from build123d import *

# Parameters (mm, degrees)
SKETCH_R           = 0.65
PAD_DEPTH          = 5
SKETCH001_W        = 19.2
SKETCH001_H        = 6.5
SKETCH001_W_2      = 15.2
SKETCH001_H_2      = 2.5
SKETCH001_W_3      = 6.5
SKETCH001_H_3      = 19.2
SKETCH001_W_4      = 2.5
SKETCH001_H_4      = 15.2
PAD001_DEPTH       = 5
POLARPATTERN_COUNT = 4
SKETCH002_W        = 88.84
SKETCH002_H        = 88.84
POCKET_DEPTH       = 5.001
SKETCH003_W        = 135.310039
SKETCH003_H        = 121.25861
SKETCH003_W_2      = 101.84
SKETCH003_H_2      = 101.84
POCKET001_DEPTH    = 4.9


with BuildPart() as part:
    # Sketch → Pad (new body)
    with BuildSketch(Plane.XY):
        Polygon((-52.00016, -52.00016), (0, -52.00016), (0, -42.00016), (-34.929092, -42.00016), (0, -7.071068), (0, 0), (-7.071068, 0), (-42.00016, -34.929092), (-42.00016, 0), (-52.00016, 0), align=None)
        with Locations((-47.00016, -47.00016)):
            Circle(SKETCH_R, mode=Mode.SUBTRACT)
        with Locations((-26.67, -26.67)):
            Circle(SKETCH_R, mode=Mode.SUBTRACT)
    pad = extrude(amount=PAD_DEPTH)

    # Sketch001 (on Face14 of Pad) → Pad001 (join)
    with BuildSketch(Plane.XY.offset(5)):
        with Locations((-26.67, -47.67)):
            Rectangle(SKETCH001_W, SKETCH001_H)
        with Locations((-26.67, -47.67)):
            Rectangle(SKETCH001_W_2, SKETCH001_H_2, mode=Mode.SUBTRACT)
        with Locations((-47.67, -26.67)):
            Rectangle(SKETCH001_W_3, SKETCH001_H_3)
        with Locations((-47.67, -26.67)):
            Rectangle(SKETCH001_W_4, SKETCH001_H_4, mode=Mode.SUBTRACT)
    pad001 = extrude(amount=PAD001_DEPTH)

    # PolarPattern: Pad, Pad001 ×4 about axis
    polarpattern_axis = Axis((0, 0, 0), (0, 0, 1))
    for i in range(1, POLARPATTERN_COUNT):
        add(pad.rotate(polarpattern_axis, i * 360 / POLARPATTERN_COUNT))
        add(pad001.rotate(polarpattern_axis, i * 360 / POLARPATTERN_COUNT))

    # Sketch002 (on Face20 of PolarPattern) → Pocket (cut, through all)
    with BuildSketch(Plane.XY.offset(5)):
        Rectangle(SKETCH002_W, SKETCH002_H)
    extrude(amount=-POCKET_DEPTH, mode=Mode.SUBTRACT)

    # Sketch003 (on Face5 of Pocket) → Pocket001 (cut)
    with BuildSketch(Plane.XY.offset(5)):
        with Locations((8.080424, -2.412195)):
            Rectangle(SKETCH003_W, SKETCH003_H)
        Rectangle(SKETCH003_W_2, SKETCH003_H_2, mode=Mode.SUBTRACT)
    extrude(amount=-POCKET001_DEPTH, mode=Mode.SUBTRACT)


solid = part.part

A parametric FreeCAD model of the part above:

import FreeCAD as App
import Part
import Sketcher
from FreeCAD import Vector
Q = App.Units.Quantity


def add_polygon(sketch, points):
    """Adds a closed chain of lines whose ends are joined by coincident constraints."""
    first, n = sketch.GeometryCount, len(points)
    for a, b in zip(points, points[1:] + points[:1]):
        sketch.addGeometry(Part.LineSegment(App.Vector(*a, 0), App.Vector(*b, 0)), False)
    for i in range(n):
        sketch.addConstraint(Sketcher.Constraint("Coincident", first + i, 2, first + (i + 1) % n, 1))

doc = App.newDocument("Part")
body = doc.addObject("PartDesign::Body", "Body")

# Sketch on XY plane
sketch1 = body.newObject("Sketcher::SketchObject", "Sketch")
sketch1.AttachmentSupport = (doc.getObject("XY_Plane"), [""])
sketch1.MapMode = "FlatFace"
add_polygon(sketch1, [(-52.00016, -52.00016), (0, -52.00016), (0, -42.00016), (-34.929092, -42.00016), (0, -7.071068), (0, 0), (-7.071068, 0), (-42.00016, -34.929092), (-42.00016, 0), (-52.00016, 0)])  # lines 0-9
sketch1.addGeometry(Part.Circle(Vector(-47.00016, -47.00016, 0), Vector(0, 0, 1), 0.65), False)  # 10
sketch1.addGeometry(Part.Circle(Vector(-26.67, -26.67, 0), Vector(0, 0, 1), 0.65), False)  # 11
sketch1.addConstraint(Sketcher.Constraint("Horizontal", 0))
sketch1.addConstraint(Sketcher.Constraint("Vertical", 1))
sketch1.addConstraint(Sketcher.Constraint("Horizontal", 2))
sketch1.addConstraint(Sketcher.Constraint("Vertical", 4))
sketch1.addConstraint(Sketcher.Constraint("Horizontal", 5))
sketch1.addConstraint(Sketcher.Constraint("Vertical", 7))
sketch1.addConstraint(Sketcher.Constraint("Horizontal", 8))
sketch1.addConstraint(Sketcher.Constraint("Vertical", 9))
sketch1.addConstraint(Sketcher.Constraint("Coincident", 4, 2, -1, 1))
sketch1.addConstraint(Sketcher.Constraint("Equal", 10, 11))
sketch1.addConstraint(Sketcher.Constraint("PointOnObject", 0, 2, -2))
sketch1.addConstraint(Sketcher.Constraint("PointOnObject", 7, 2, -1))
sketch1.addConstraint(Sketcher.Constraint("Parallel", 3, 6))
sketch1.addConstraint(Sketcher.Constraint("Equal", 8, 1))
sketch1.addConstraint(Sketcher.Constraint("Equal", 5, 4))
sketch1.addConstraint(Sketcher.Constraint("Equal", 2, 7))
sketch1.addConstraint(Sketcher.Constraint("Equal", 0, 9))
sketch1.addConstraint(Sketcher.Constraint("Diameter", 10, Q("1.3 mm")))
sketch1.addConstraint(Sketcher.Constraint("DistanceX", 8, 2, 8, 1, Q("10 mm")))
sketch1.addConstraint(Sketcher.Constraint("DistanceY", 0, 2, 10, 3, Q("5 mm")))
sketch1.addConstraint(Sketcher.Constraint("DistanceX", 10, 3, 6, 2, Q("5 mm")))
sketch1.addConstraint(Sketcher.Constraint("DistanceX", 11, 3, -1, 1, Q("26.67 mm")))
sketch1.addConstraint(Sketcher.Constraint("DistanceY", 11, 3, -1, 1, Q("26.67 mm")))
sketch1.addConstraint(Sketcher.Constraint("DistanceX", 0, 1, 0, 2, Q("52.00016 mm")))
sketch1.addConstraint(Sketcher.Constraint("DistanceX", 2, 2, 2, 1, Q("34.929092 mm")))
pad1 = body.newObject("PartDesign::Pad", "Pad")
pad1.Profile = sketch1
pad1.Length = 5

# Sketch on XY plane
sketch2 = body.newObject("Sketcher::SketchObject", "Sketch001")
sketch2.AttachmentSupport = (doc.getObject("XY_Plane"), [""])
sketch2.MapMode = "FlatFace"
sketch2.AttachmentOffset = App.Placement(Vector(0, 0, 5), App.Rotation())
add_polygon(sketch2, [(-36.27, -44.42), (-36.27, -50.92), (-17.07, -50.92), (-17.07, -44.42)])  # lines 0-3
add_polygon(sketch2, [(-19.07, -48.92), (-34.27, -48.92), (-34.27, -46.42), (-19.07, -46.42)])  # lines 4-7
add_polygon(sketch2, [(-50.92, -17.07), (-50.92, -36.27), (-44.42, -36.27), (-44.42, -17.07)])  # lines 8-11
add_polygon(sketch2, [(-46.42, -34.27), (-48.92, -34.27), (-48.92, -19.07), (-46.42, -19.07)])  # lines 12-15
sketch2.addConstraint(Sketcher.Constraint("Vertical", 0))
sketch2.addConstraint(Sketcher.Constraint("Horizontal", 1))
sketch2.addConstraint(Sketcher.Constraint("Vertical", 2))
sketch2.addConstraint(Sketcher.Constraint("Horizontal", 3))
sketch2.addConstraint(Sketcher.Constraint("Horizontal", 4))
sketch2.addConstraint(Sketcher.Constraint("Vertical", 5))
sketch2.addConstraint(Sketcher.Constraint("Horizontal", 6))
sketch2.addConstraint(Sketcher.Constraint("Vertical", 7))
sketch2.addConstraint(Sketcher.Constraint("Vertical", 8))
sketch2.addConstraint(Sketcher.Constraint("Horizontal", 9))
sketch2.addConstraint(Sketcher.Constraint("Vertical", 10))
sketch2.addConstraint(Sketcher.Constraint("Horizontal", 11))
sketch2.addConstraint(Sketcher.Constraint("Horizontal", 12))
sketch2.addConstraint(Sketcher.Constraint("Vertical", 13))
sketch2.addConstraint(Sketcher.Constraint("Horizontal", 14))
sketch2.addConstraint(Sketcher.Constraint("Vertical", 15))
sketch2.addConstraint(Sketcher.Constraint("Equal", 11, 0))
sketch2.addConstraint(Sketcher.Constraint("Equal", 14, 5))
sketch2.addConstraint(Sketcher.Constraint("Equal", 3, 8))
sketch2.addConstraint(Sketcher.Constraint("Equal", 6, 13))
sketch2.addConstraint(Sketcher.Constraint("DistanceX", 1, 1, 1, 2, Q("19.2 mm")))
sketch2.addConstraint(Sketcher.Constraint("DistanceX", 4, 2, 4, 1, Q("15.2 mm")))
sketch2.addConstraint(Sketcher.Constraint("DistanceX", 9, 1, 9, 2, Q("6.5 mm")))
sketch2.addConstraint(Sketcher.Constraint("DistanceX", 12, 2, 12, 1, Q("2.5 mm")))
sketch2.addConstraint(Sketcher.Constraint("DistanceX", 0, 2, 4, 2, Q("2 mm")))
sketch2.addConstraint(Sketcher.Constraint("DistanceY", 0, 2, 4, 2, Q("2 mm")))
sketch2.addConstraint(Sketcher.Constraint("DistanceX", 8, 2, 12, 2, Q("2 mm")))
sketch2.addConstraint(Sketcher.Constraint("DistanceY", 8, 2, 12, 2, Q("2 mm")))
sketch2.addConstraint(Sketcher.Constraint("DistanceX", 0, 2, -1, 1, Q("36.27 mm")))
sketch2.addConstraint(Sketcher.Constraint("DistanceY", 0, 2, -1, 1, Q("50.92 mm")))
sketch2.addConstraint(Sketcher.Constraint("DistanceX", 8, 2, -1, 1, Q("50.92 mm")))
sketch2.addConstraint(Sketcher.Constraint("DistanceY", 8, 2, -1, 1, Q("36.27 mm")))
pad2 = body.newObject("PartDesign::Pad", "Pad001")
pad2.Profile = sketch2
pad2.Length = 5
doc.recompute()

polarpattern = body.newObject("PartDesign::PolarPattern", "PolarPattern")
polarpattern.Originals = [pad1, pad2]
polarpattern.Axis = (doc.getObject("Z_Axis"), [""])
polarpattern.Angle = 360
polarpattern.Occurrences = 4
body.Tip = polarpattern

# Sketch on XY plane
sketch3 = body.newObject("Sketcher::SketchObject", "Sketch002")
sketch3.AttachmentSupport = (doc.getObject("XY_Plane"), [""])
sketch3.MapMode = "FlatFace"
sketch3.AttachmentOffset = App.Placement(Vector(0, 0, 5), App.Rotation())
add_polygon(sketch3, [(-44.42, 44.42), (-44.42, -44.42), (44.42, -44.42), (44.42, 44.42)])  # lines 0-3
sketch3.addConstraint(Sketcher.Constraint("Vertical", 0))
sketch3.addConstraint(Sketcher.Constraint("Horizontal", 1))
sketch3.addConstraint(Sketcher.Constraint("Vertical", 2))
sketch3.addConstraint(Sketcher.Constraint("Horizontal", 3))
sketch3.addConstraint(Sketcher.Constraint("Symmetric", 0, 2, 2, 2, -1, 1))
sketch3.addConstraint(Sketcher.Constraint("Equal", 3, 0))
sketch3.addConstraint(Sketcher.Constraint("DistanceX", 1, 1, 1, 2, Q("88.84 mm")))
pocket1 = body.newObject("PartDesign::Pocket", "Pocket")
pocket1.Profile = sketch3
pocket1.Type = "ThroughAll"

# Sketch on XY plane
sketch4 = body.newObject("Sketcher::SketchObject", "Sketch003")
sketch4.AttachmentSupport = (doc.getObject("XY_Plane"), [""])
sketch4.MapMode = "FlatFace"
sketch4.AttachmentOffset = App.Placement(Vector(0, 0, 5), App.Rotation())
add_polygon(sketch4, [(-59.574596, 58.21711), (-59.574596, -63.0415), (75.735444, -63.0415), (75.735444, 58.21711)])  # lines 0-3
add_polygon(sketch4, [(50.92, -50.92), (-50.92, -50.92), (-50.92, 50.92), (50.92, 50.92)])  # lines 4-7
sketch4.addConstraint(Sketcher.Constraint("Vertical", 0))
sketch4.addConstraint(Sketcher.Constraint("Horizontal", 1))
sketch4.addConstraint(Sketcher.Constraint("Vertical", 2))
sketch4.addConstraint(Sketcher.Constraint("Horizontal", 3))
sketch4.addConstraint(Sketcher.Constraint("Horizontal", 4))
sketch4.addConstraint(Sketcher.Constraint("Vertical", 5))
sketch4.addConstraint(Sketcher.Constraint("Horizontal", 6))
sketch4.addConstraint(Sketcher.Constraint("Vertical", 7))
sketch4.addConstraint(Sketcher.Constraint("Symmetric", 4, 2, 6, 2, -1, 1))
sketch4.addConstraint(Sketcher.Constraint("Equal", 6, 5))
sketch4.addConstraint(Sketcher.Constraint("DistanceX", 4, 2, 4, 1, Q("101.84 mm")))
sketch4.addConstraint(Sketcher.Constraint("DistanceX", 1, 1, 1, 2, Q("135.310039 mm")))
sketch4.addConstraint(Sketcher.Constraint("DistanceY", 0, 2, 0, 1, Q("121.25861 mm")))
sketch4.addConstraint(Sketcher.Constraint("DistanceY", 0, 2, -1, 1, Q("63.0415 mm")))
sketch4.addConstraint(Sketcher.Constraint("DistanceX", 0, 2, -1, 1, Q("59.574596 mm")))
pocket2 = body.newObject("PartDesign::Pocket", "Pocket001")
pocket2.Profile = sketch4
pocket2.Length = 4.9

doc.recompute()
